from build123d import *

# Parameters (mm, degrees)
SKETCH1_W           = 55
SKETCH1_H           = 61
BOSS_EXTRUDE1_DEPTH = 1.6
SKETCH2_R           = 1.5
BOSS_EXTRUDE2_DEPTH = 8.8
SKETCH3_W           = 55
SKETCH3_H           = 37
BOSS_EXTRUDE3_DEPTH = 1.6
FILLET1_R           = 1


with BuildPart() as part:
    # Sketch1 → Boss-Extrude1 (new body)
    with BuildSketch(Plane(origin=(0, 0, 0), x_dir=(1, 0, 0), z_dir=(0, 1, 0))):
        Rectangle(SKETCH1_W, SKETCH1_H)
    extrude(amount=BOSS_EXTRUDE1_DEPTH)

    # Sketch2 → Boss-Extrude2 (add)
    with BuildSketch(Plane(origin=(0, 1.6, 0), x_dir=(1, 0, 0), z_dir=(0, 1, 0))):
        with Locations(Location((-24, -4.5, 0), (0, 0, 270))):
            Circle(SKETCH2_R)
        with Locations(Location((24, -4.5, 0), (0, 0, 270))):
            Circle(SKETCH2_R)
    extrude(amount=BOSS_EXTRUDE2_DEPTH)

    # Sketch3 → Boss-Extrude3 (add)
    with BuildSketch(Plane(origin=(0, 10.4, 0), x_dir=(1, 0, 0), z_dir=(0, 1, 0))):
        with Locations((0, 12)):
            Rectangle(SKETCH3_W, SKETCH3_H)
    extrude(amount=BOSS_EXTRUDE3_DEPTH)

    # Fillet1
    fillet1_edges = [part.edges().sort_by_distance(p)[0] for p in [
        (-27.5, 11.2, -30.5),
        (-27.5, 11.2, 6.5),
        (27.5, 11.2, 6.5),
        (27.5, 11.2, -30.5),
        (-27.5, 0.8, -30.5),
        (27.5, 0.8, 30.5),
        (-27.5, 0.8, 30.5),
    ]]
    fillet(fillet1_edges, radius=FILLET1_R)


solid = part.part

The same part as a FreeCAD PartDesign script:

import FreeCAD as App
import Part
import Sketcher
from FreeCAD import Vector


def edges_at(feature, points):
    """Names of the edges that pass closest to the given points."""
    edges = feature.Shape.Edges
    near = lambda p: min(range(len(edges)), key=lambda i: edges[i].distToShape(Part.Vertex(*p))[0])
    return sorted({f"Edge{near(p) + 1}" for p in points})


def add_polygon(sketch, points):
    """Adds a closed chain of lines whose ends are joined by coincident constraints."""
    first, n = sketch.GeometryCount, len(points)
    for a, b in zip(points, points[1:] + points[:1]):
        sketch.addGeometry(Part.LineSegment(App.Vector(*a, 0), App.Vector(*b, 0)), False)
    for i in range(n):
        sketch.addConstraint(Sketcher.Constraint("Coincident", first + i, 2, first + (i + 1) % n, 1))

doc = App.newDocument("Part")
body = doc.addObject("PartDesign::Body", "Body")

# Sketch on XZ plane
sketch1 = doc.addObject("Sketcher::SketchObject", "Sketch")
body.addObject(sketch1)
sketch1.AttachmentSupport = (doc.XZ_Plane, [""])
sketch1.MapMode = "FlatFace"
add_polygon(sketch1, [(-28, -30), (-28, 30), (28, 30), (28, -30)])  # lines 0-3
sketch1.addConstraint([
    Sketcher.Constraint("Vertical", 0),
    Sketcher.Constraint("Horizontal", 1),
    Sketcher.Constraint("Vertical", 2),
    Sketcher.Constraint("Horizontal", 3),
    Sketcher.Constraint("Symmetric", 0, 2, 2, 2, -1, 1),
    Sketcher.Constraint("DistanceX", 1, 1, 1, 2, 55.0),
    Sketcher.Constraint("DistanceY", 0, 1, 0, 2, 61.0),
])
pad1 = doc.addObject("PartDesign::Pad", "Pad")
body.addObject(pad1)
pad1.Profile = sketch1
pad1.Length = 1.6
pad1.Reversed = True

# Sketch on XZ plane
sketch2 = doc.addObject("Sketcher::SketchObject", "Sketch001")
body.addObject(sketch2)
sketch2.AttachmentSupport = (doc.XZ_Plane, [""])
sketch2.MapMode = "FlatFace"
sketch2.AttachmentOffset = App.Placement(Vector(0, 0, -1.6), App.Rotation())
sketch2.addGeometry([
    Part.Circle(Vector(-24, 4.5, 0), Vector(0, 0, 1), 1.5),
    Part.Circle(Vector(24, 4.5, 0), Vector(0, 0, 1), 1.5),
], False)
sketch2.addConstraint([
    Sketcher.Constraint("Equal", 0, 1),
    Sketcher.Constraint("Symmetric", 0, 3, 1, 3, -2),
    Sketcher.Constraint("Diameter", 0, 3.0),
    Sketcher.Constraint("DistanceX", 0, 3, -1, 1, 24.0),
    Sketcher.Constraint("DistanceY", -1, 1, 0, 3, 4.5),
])
pad2 = doc.addObject("PartDesign::Pad", "Pad001")
body.addObject(pad2)
pad2.Profile = sketch2
pad2.Length = 8.8
pad2.Reversed = True

# Sketch on XZ plane
sketch3 = doc.addObject("Sketcher::SketchObject", "Sketch002")
body.addObject(sketch3)
sketch3.AttachmentSupport = (doc.XZ_Plane, [""])
sketch3.MapMode = "FlatFace"
sketch3.AttachmentOffset = App.Placement(Vector(0, 0, -10.4), App.Rotation())
add_polygon(sketch3, [(-28, -30), (-28, 6), (28, 6), (28, -30)])  # lines 0-3
sketch3.addConstraint([
    Sketcher.Constraint("Vertical", 0),
    Sketcher.Constraint("Horizontal", 1),
    Sketcher.Constraint("Vertical", 2),
    Sketcher.Constraint("Horizontal", 3),
    Sketcher.Constraint("DistanceX", 1, 1, 1, 2, 55.0),
    Sketcher.Constraint("DistanceY", 0, 1, 0, 2, 37.0),
    Sketcher.Constraint("DistanceX", 0, 2, -1, 1, 27.5),
    Sketcher.Constraint("DistanceY", -1, 1, 0, 2, 6.5),
])
pad3 = doc.addObject("PartDesign::Pad", "Pad002")
body.addObject(pad3)
pad3.Profile = sketch3
pad3.Length = 1.6
pad3.Reversed = True
doc.recompute()

fillet = doc.addObject("PartDesign::Fillet", "Fillet")
body.addObject(fillet)
fillet.Base = (pad3, edges_at(pad3, [
    (-27.5, 11.2, -30.5),
    (-27.5, 11.2, 6.5),
    (27.5, 11.2, 6.5),
    (27.5, 11.2, -30.5),
    (-27.5, 0.8, -30.5),
    (27.5, 0.8, 30.5),
    (-27.5, 0.8, 30.5),
]))
fillet.Radius = 1

doc.recompute()
